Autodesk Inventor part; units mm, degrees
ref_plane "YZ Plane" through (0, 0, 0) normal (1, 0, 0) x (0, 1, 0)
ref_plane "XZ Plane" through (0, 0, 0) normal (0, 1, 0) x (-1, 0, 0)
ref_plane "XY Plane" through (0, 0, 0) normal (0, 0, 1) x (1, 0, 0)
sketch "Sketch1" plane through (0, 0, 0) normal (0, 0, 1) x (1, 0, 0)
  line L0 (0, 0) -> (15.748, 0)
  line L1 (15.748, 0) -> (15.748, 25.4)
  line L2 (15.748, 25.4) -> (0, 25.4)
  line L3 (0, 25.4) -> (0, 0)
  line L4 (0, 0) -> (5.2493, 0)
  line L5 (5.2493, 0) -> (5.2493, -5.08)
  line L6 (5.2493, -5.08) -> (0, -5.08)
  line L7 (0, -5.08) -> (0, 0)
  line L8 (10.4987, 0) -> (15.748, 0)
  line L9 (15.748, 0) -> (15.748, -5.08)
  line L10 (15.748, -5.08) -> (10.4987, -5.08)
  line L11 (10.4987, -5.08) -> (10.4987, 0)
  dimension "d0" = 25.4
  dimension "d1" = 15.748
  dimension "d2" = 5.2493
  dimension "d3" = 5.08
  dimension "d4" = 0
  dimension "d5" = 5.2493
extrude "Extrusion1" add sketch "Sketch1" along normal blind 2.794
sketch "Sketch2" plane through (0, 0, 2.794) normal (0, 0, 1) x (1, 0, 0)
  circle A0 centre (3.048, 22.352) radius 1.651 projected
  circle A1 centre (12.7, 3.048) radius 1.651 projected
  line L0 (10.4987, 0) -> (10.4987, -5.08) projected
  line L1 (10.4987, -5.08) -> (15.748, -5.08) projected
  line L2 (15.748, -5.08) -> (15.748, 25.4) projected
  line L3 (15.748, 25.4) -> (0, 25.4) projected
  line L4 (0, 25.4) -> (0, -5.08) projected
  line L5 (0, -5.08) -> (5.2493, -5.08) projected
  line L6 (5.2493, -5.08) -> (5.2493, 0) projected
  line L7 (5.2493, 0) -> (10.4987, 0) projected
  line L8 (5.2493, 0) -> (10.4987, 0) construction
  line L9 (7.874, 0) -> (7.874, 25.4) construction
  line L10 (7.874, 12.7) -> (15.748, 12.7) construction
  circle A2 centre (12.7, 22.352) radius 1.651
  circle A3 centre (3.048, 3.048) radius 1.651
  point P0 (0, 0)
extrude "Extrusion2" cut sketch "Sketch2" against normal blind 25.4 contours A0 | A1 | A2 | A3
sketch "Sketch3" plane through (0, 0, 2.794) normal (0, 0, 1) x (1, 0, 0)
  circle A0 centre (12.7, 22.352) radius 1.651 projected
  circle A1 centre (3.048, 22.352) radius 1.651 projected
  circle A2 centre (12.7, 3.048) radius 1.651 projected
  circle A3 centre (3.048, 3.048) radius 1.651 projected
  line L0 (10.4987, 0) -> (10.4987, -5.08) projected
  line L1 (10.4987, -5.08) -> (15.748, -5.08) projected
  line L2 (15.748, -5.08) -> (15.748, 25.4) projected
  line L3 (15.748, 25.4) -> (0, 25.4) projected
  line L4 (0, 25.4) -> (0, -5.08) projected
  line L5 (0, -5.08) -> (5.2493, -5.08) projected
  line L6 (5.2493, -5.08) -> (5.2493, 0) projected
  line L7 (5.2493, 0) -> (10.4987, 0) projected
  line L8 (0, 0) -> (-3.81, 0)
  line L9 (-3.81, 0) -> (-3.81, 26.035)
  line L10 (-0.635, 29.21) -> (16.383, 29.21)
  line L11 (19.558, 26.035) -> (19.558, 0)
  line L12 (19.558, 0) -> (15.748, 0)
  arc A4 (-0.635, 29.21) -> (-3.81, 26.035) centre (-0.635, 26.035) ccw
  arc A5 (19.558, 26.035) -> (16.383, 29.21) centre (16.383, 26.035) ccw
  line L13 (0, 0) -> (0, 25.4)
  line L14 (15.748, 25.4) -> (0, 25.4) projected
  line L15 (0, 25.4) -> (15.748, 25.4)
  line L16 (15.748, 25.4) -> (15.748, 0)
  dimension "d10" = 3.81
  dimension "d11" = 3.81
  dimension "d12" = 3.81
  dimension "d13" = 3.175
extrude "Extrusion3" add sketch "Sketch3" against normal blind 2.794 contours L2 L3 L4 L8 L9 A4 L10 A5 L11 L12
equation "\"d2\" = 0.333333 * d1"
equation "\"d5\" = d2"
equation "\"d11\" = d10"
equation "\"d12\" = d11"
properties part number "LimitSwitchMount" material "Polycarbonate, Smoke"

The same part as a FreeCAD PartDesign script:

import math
import FreeCAD as App
import Part
import Sketcher

V = App.Vector
Q = App.Units.Quantity


def add_polygon(sketch, points):
    """Adds a closed chain of lines whose ends are joined by coincident constraints."""
    first, n = sketch.GeometryCount, len(points)
    for a, b in zip(points, points[1:] + points[:1]):
        sketch.addGeometry(Part.LineSegment(App.Vector(*a, 0), App.Vector(*b, 0)), False)
    for i in range(n):
        sketch.addConstraint(Sketcher.Constraint("Coincident", first + i, 2, first + (i + 1) % n, 1))

doc = App.newDocument("Part")
body = doc.addObject("PartDesign::Body", "Body")

# Sketch on XY plane
sketch1 = body.newObject("Sketcher::SketchObject", "Sketch")
sketch1.AttachmentSupport = (doc.getObject("XY_Plane"), [""])
sketch1.MapMode = "FlatFace"
add_polygon(sketch1, [(0, 25), (0, -5), (5, -5), (5, 0), (10, 0), (10, -5), (16, -5), (16, 25)])  # lines 0-7
sketch1.addConstraint([
    Sketcher.Constraint("Vertical", 0),
    Sketcher.Constraint("Horizontal", 1),
    Sketcher.Constraint("Vertical", 2),
    Sketcher.Constraint("Horizontal", 3),
    Sketcher.Constraint("Vertical", 4),
    Sketcher.Constraint("Horizontal", 5),
    Sketcher.Constraint("Vertical", 6),
    Sketcher.Constraint("Horizontal", 7),
    Sketcher.Constraint("PointOnObject", 0, 2, -2),
    Sketcher.Constraint("PointOnObject", 2, 2, -1),
    Sketcher.Constraint("Horizontal", 1, 2, 4, 2),
    Sketcher.Constraint("Equal", 1, 3),
    Sketcher.Constraint("Equal", 3, 5),
    Sketcher.Constraint("DistanceY", 2, 1, 2, 2, Q("0.2 in")),
    Sketcher.Constraint("DistanceY", -1, 1, 6, 2, Q("1 in")),
    Sketcher.Constraint("DistanceX", 7, 2, 7, 1, Q("0.62 in")),
])
pad1 = body.newObject("PartDesign::Pad", "Pad")
pad1.Profile = sketch1
pad1.Length = Q("0.11 in")

# Sketch on XY plane
sketch2 = body.newObject("Sketcher::SketchObject", "Sketch001")
sketch2.AttachmentSupport = (doc.getObject("XY_Plane"), [""])
sketch2.MapMode = "FlatFace"
sketch2.AttachmentOffset = App.Placement(V(0, 0, 0.11 * 25.4), App.Rotation())
sketch2.addGeometry([
    Part.Circle(V(3, 22.4, 0), V(0, 0, 1), 1.7),
    Part.Circle(V(12.7, 3, 0), V(0, 0, 1), 1.7),
    Part.Circle(V(12.7, 22.4, 0), V(0, 0, 1), 1.7),
    Part.Circle(V(3, 3, 0), V(0, 0, 1), 1.7),
], False)
sketch2.addConstraint([
    Sketcher.Constraint("Equal", 0, 1),
    Sketcher.Constraint("Equal", 1, 2),
    Sketcher.Constraint("Equal", 2, 3),
    Sketcher.Constraint("Horizontal", 0, 3, 2, 3),
    Sketcher.Constraint("Horizontal", 1, 3, 3, 3),
    Sketcher.Constraint("Vertical", 1, 3, 2, 3),
    Sketcher.Constraint("Vertical", 0, 3, 3, 3),
    Sketcher.Constraint("Diameter", 0, Q("0.13 in")),
    Sketcher.Constraint("DistanceX", -1, 1, 1, 3, Q("0.5 in")),
    Sketcher.Constraint("DistanceX", -1, 1, 0, 3, Q("0.12 in")),
    Sketcher.Constraint("DistanceY", -1, 1, 0, 3, Q("0.88 in")),
    Sketcher.Constraint("DistanceY", -1, 1, 1, 3, Q("0.12 in")),
])
pocket1 = body.newObject("PartDesign::Pocket", "Pocket")
pocket1.Profile = sketch2
pocket1.Length = Q("1 in")

# Sketch on XY plane
sketch3 = body.newObject("Sketcher::SketchObject", "Sketch002")
sketch3.AttachmentSupport = (doc.getObject("XY_Plane"), [""])
sketch3.MapMode = "FlatFace"
sketch3.AttachmentOffset = App.Placement(V(0, 0, 0.11 * 25.4), App.Rotation())
sketch3.addGeometry([
    Part.LineSegment(V(15.7, 25.4, 0), V(15.7, 0, 0)),  # 0
    Part.LineSegment(V(15.7, 0, 0), V(19.6, 0, 0)),  # 1
    Part.LineSegment(V(19.6, 0, 0), V(19.6, 26, 0)),  # 2
    Part.ArcOfCircle(Part.Circle(V(16.4, 26, 0), V(0, 0, 1), 3.2), math.radians(0), math.radians(90)),  # 3
    Part.LineSegment(V(16.4, 29.2, 0), V(-0.6, 29.2, 0)),  # 4
    Part.ArcOfCircle(Part.Circle(V(-0.6, 26, 0), V(0, 0, 1), 3.2), math.radians(90), math.radians(180)),  # 5
    Part.LineSegment(V(-3.8, 26, 0), V(-3.8, 0, 0)),  # 6
    Part.LineSegment(V(-3.8, 0, 0), V(0, 0, 0)),  # 7
    Part.LineSegment(V(0, 0, 0), V(0, 25.4, 0)),  # 8
    Part.LineSegment(V(0, 25.4, 0), V(15.7, 25.4, 0)),  # 9
], False)
sketch3.addConstraint([
    Sketcher.Constraint("Coincident", 0, 2, 1, 1),
    Sketcher.Constraint("Coincident", 1, 2, 2, 1),
    Sketcher.Constraint("Tangent", 2, 2, 3, 1),
    Sketcher.Constraint("Tangent", 3, 2, 4, 1),
    Sketcher.Constraint("Tangent", 4, 2, 5, 1),
    Sketcher.Constraint("Tangent", 5, 2, 6, 1),
    Sketcher.Constraint("Coincident", 6, 2, 7, 1),
    Sketcher.Constraint("Coincident", 7, 2, 8, 1),
    Sketcher.Constraint("Coincident", 8, 2, 9, 1),
    Sketcher.Constraint("Coincident", 9, 2, 0, 1),
    Sketcher.Constraint("Vertical", 0),
    Sketcher.Constraint("Horizontal", 1),
    Sketcher.Constraint("Vertical", 2),
    Sketcher.Constraint("Horizontal", 4),
    Sketcher.Constraint("Vertical", 6),
    Sketcher.Constraint("Horizontal", 7),
    Sketcher.Constraint("Vertical", 8),
    Sketcher.Constraint("Horizontal", 9),
    Sketcher.Constraint("Coincident", 7, 2, -1, 1),
    Sketcher.Constraint("Equal", 3, 5),
    Sketcher.Constraint("PointOnObject", 0, 2, -1),
    Sketcher.Constraint("Equal", 1, 7),
    Sketcher.Constraint("Radius", 3, Q("0.125 in")),
    Sketcher.Constraint("DistanceX", 1, 1, 1, 2, Q("0.15 in")),
    Sketcher.Constraint("DistanceY", 0, 2, 0, 1, Q("1 in")),
    Sketcher.Constraint("DistanceY", 8, 2, 4, 2, Q("0.15 in")),
    Sketcher.Constraint("DistanceX", 4, 2, 4, 1, Q("0.67 in")),
])
pad2 = body.newObject("PartDesign::Pad", "Pad001")
pad2.Profile = sketch3
pad2.Length = Q("0.11 in")
pad2.Reversed = True

doc.recompute()
